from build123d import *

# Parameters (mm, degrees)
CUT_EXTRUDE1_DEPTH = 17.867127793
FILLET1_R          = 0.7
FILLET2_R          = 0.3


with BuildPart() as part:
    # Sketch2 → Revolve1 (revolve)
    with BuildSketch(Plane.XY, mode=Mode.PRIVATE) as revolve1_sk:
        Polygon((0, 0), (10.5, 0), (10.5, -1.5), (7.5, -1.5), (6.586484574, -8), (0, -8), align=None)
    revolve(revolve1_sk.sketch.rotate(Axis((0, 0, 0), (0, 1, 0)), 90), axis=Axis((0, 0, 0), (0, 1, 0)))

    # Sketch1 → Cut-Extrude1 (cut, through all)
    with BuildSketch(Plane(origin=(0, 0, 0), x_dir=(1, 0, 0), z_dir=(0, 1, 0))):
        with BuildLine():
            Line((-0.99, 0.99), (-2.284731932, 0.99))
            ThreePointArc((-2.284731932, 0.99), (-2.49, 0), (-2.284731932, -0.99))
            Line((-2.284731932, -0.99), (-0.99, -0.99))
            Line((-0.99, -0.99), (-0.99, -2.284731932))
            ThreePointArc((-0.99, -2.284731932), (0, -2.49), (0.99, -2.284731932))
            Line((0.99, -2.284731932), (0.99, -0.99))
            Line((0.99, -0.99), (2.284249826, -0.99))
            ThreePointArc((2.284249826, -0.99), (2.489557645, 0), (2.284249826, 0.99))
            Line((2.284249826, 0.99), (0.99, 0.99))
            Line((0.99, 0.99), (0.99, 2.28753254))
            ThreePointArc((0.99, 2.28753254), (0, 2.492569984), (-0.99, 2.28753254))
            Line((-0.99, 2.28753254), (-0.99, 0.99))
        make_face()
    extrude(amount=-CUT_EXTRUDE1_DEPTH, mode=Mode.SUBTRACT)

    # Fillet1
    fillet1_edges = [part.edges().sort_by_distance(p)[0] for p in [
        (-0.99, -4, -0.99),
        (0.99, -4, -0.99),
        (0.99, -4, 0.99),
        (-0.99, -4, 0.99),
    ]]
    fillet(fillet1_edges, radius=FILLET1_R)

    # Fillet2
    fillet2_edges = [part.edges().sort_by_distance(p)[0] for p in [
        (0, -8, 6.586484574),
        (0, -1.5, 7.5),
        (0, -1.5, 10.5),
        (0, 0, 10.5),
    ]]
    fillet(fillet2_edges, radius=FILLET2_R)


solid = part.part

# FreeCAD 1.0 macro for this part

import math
import FreeCAD as App
import Part
import Sketcher
from FreeCAD import Vector
Q = App.Units.Quantity


def edges_at(feature, points):
    """Names of the edges that pass closest to the given points."""
    edges = feature.Shape.Edges
    near = lambda p: min(range(len(edges)), key=lambda i: edges[i].distToShape(Part.Vertex(*p))[0])
    return sorted({f"Edge{near(p) + 1}" for p in points})


def add_polygon(sketch, points):
    """Adds a closed chain of lines whose ends are joined by coincident constraints."""
    first, n = sketch.GeometryCount, len(points)
    for a, b in zip(points, points[1:] + points[:1]):
        sketch.addGeometry(Part.LineSegment(App.Vector(*a, 0), App.Vector(*b, 0)), False)
    for i in range(n):
        sketch.addConstraint(Sketcher.Constraint("Coincident", first + i, 2, first + (i + 1) % n, 1))

doc = App.newDocument("Part")
body = doc.addObject("PartDesign::Body", "Body")

# Sketch on XY plane
sketch1 = body.newObject("Sketcher::SketchObject", "Sketch")
sketch1.AttachmentSupport = (doc.getObject("XY_Plane"), [""])
sketch1.MapMode = "FlatFace"
add_polygon(sketch1, [(10.5, 0), (0, 0), (0, -8), (6.586485, -8), (7.5, -1.5), (10.5, -1.5)])  # lines 0-5
sketch1.addConstraint([
    Sketcher.Constraint("Horizontal", 0),
    Sketcher.Constraint("Vertical", 1),
    Sketcher.Constraint("Horizontal", 2),
    Sketcher.Constraint("Horizontal", 4),
    Sketcher.Constraint("Vertical", 5),
    Sketcher.Constraint("Coincident", 0, 2, -1, 1),
    Sketcher.Constraint("DistanceX", 4, 1, 4, 2, 3.0),
    Sketcher.Constraint("DistanceY", 1, 2, 1, 1, 8.0),
    Sketcher.Constraint("Angle", 3, Q("82 deg")),
    Sketcher.Constraint("DistanceX", 0, 2, 0, 1, 10.5),
    Sketcher.Constraint("DistanceY", 5, 1, 5, 2, 1.5),
])
revolution = body.newObject("PartDesign::Revolution", "Revolution")
revolution.Profile = sketch1
revolution.ReferenceAxis = (sketch1, ["V_Axis"])
revolution.Angle = 360

# Sketch on XZ plane
sketch2 = body.newObject("Sketcher::SketchObject", "Sketch001")
sketch2.AttachmentSupport = (doc.getObject("XZ_Plane"), [""])
sketch2.MapMode = "FlatFace"
sketch2.addGeometry([
    Part.LineSegment(Vector(-0.99, -0.99, 0), Vector(-2.284732, -0.99, 0)),  # 0
    Part.ArcOfCircle(Part.Circle(Vector(0, 0, 0), Vector(0, 0, 1), 2.49), math.radians(156.572374), math.radians(203.427626)),  # 1
    Part.LineSegment(Vector(-2.284732, 0.99, 0), Vector(-0.99, 0.99, 0)),  # 2
    Part.LineSegment(Vector(-0.99, 0.99, 0), Vector(-0.99, 2.284732, 0)),  # 3
    Part.ArcOfCircle(Part.Circle(Vector(0, 0, 0), Vector(0, 0, 1), 2.49), math.radians(66.572374), math.radians(113.427626)),  # 4
    Part.LineSegment(Vector(0.99, 2.284732, 0), Vector(0.99, 0.99, 0)),  # 5
    Part.LineSegment(Vector(0.99, 0.99, 0), Vector(2.28425, 0.99, 0)),  # 6
    Part.ArcOfCircle(Part.Circle(Vector(0, 0, 0), Vector(0, 0, 1), 2.489558), math.radians(-23.432038), math.radians(23.432038)),  # 7
    Part.LineSegment(Vector(2.28425, -0.99, 0), Vector(0.99, -0.99, 0)),  # 8
    Part.LineSegment(Vector(0.99, -0.99, 0), Vector(0.99, -2.287533, 0)),  # 9
    Part.ArcOfCircle(Part.Circle(Vector(0, 0, 0), Vector(0, 0, 1), 2.49257), math.radians(-113.402031), math.radians(-66.597969)),  # 10
    Part.LineSegment(Vector(-0.99, -2.287533, 0), Vector(-0.99, -0.99, 0)),  # 11
], False)
sketch2.addConstraint([
    Sketcher.Constraint("Coincident", 0, 2, 1, 2),
    Sketcher.Constraint("Coincident", 1, 1, 2, 1),
    Sketcher.Constraint("Coincident", 2, 2, 3, 1),
    Sketcher.Constraint("Coincident", 3, 2, 4, 2),
    Sketcher.Constraint("Coincident", 4, 1, 5, 1),
    Sketcher.Constraint("Coincident", 5, 2, 6, 1),
    Sketcher.Constraint("Coincident", 6, 2, 7, 2),
    Sketcher.Constraint("Coincident", 7, 1, 8, 1),
    Sketcher.Constraint("Coincident", 8, 2, 9, 1),
    Sketcher.Constraint("Coincident", 9, 2, 10, 2),
    Sketcher.Constraint("Coincident", 10, 1, 11, 1),
    Sketcher.Constraint("Coincident", 11, 2, 0, 1),
    Sketcher.Constraint("Horizontal", 0),
    Sketcher.Constraint("Horizontal", 2),
    Sketcher.Constraint("Vertical", 3),
    Sketcher.Constraint("Vertical", 5),
    Sketcher.Constraint("Horizontal", 6),
    Sketcher.Constraint("Horizontal", 8),
    Sketcher.Constraint("Vertical", 9),
    Sketcher.Constraint("Vertical", 11),
    Sketcher.Constraint("Coincident", 1, 3, -1, 1),
    Sketcher.Constraint("Coincident", 4, 3, -1, 1),
    Sketcher.Constraint("Coincident", 7, 3, -1, 1),
    Sketcher.Constraint("Coincident", 10, 3, -1, 1),
    Sketcher.Constraint("Equal", 1, 4),
    Sketcher.Constraint("Symmetric", 2, 2, 8, 2, -1, 1),
    Sketcher.Constraint("Symmetric", 5, 2, 11, 2, -1, 1),
    Sketcher.Constraint("Symmetric", 2, 2, 5, 2, -2),
    Sketcher.Constraint("Equal", 2, 3),
    Sketcher.Constraint("Radius", 1, 2.49),
    Sketcher.Constraint("DistanceY", 0, 2, -1, 1, 0.99),
    Sketcher.Constraint("Radius", 10, 2.49257),
    Sketcher.Constraint("Radius", 7, 2.489558),
])
pocket1 = body.newObject("PartDesign::Pocket", "Pocket")
pocket1.Profile = sketch2
pocket1.Type = "ThroughAll"
pocket1.Reversed = True
doc.recompute()

fillet = body.newObject("PartDesign::Fillet", "Fillet")
fillet.Base = (pocket1, edges_at(pocket1, [
    (-0.99, -4, -0.99),
    (0.99, -4, -0.99),
    (0.99, -4, 0.99),
    (-0.99, -4, 0.99),
]))
fillet.Radius = 0.7
doc.recompute()

fillet2 = body.newObject("PartDesign::Fillet", "Fillet001")
fillet2.Base = (fillet, edges_at(fillet, [
    (0, -8, 6.586),
    (0, -1.5, 7.5),
    (0, -1.5, 10.5),
    (0, 0, 10.5),
]))
fillet2.Radius = 0.3

doc.recompute()
